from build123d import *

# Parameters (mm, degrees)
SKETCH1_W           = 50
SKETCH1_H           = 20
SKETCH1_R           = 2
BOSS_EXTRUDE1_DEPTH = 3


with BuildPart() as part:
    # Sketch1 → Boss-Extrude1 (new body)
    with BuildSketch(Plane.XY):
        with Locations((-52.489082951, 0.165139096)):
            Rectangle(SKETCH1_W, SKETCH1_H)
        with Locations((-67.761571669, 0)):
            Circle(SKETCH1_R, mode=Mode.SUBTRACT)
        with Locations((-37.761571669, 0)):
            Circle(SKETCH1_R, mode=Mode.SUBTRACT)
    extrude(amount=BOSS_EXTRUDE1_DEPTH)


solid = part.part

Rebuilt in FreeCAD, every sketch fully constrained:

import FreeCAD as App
import Part
import Sketcher

V = App.Vector


def add_polygon(sketch, points):
    """Adds a closed chain of lines whose ends are joined by coincident constraints."""
    first, n = sketch.GeometryCount, len(points)
    for a, b in zip(points, points[1:] + points[:1]):
        sketch.addGeometry(Part.LineSegment(App.Vector(*a, 0), App.Vector(*b, 0)), False)
    for i in range(n):
        sketch.addConstraint(Sketcher.Constraint("Coincident", first + i, 2, first + (i + 1) % n, 1))

doc = App.newDocument("Part")
params = doc.addObject("Spreadsheet::Sheet", "Params")
for row, (alias, value) in enumerate([
    ("sketch1_diameter", "4 mm"),
    ("sketch1_width", "50 mm"),
    ("sketch1_height", "20 mm"),
    ("pad1_length", "3 mm"),
], start=1):
    params.set(f"A{row}", alias)
    params.set(f"B{row}", "=" + value)
    params.setAlias(f"B{row}", alias)

body = doc.addObject("PartDesign::Body", "Body")

# Sketch on XY plane
sketch1 = body.newObject("Sketcher::SketchObject", "Sketch")
sketch1.AttachmentSupport = (doc.getObject("XY_Plane"), [""])
sketch1.MapMode = "FlatFace"
add_polygon(sketch1, [(-77.489083, 10.165139), (-77.489083, -9.834861), (-27.489083, -9.834861), (-27.489083, 10.165139)])  # lines 0-3
sketch1.addGeometry(Part.Circle(V(-67.761572, 0, 0), V(0, 0, 1), 2), False)  # 4
sketch1.addGeometry(Part.Circle(V(-37.761572, 0, 0), V(0, 0, 1), 2), False)  # 5
sketch1.addConstraint([
    Sketcher.Constraint("Vertical", 0),
    Sketcher.Constraint("Horizontal", 1),
    Sketcher.Constraint("Vertical", 2),
    Sketcher.Constraint("Horizontal", 3),
    Sketcher.Constraint("Equal", 4, 5),
    Sketcher.Constraint("PointOnObject", 4, 3, -1),
    Sketcher.Constraint("PointOnObject", 5, 3, -1),
    Sketcher.Constraint("Diameter", 4, 4.0),
    Sketcher.Constraint("DistanceX", 1, 1, 1, 2, 50.0),
    Sketcher.Constraint("DistanceY", 0, 2, 0, 1, 20.0),
    Sketcher.Constraint("DistanceX", 4, 3, 5, 3, 30.0),
    Sketcher.Constraint("DistanceX", 4, 3, -1, 1, 67.761572),
    Sketcher.Constraint("DistanceY", 0, 2, -1, 1, 9.834861),
    Sketcher.Constraint("DistanceX", 0, 2, 4, 3, 9.727511),
])
sketch1.setExpression("Constraints[11]", "Params.sketch1_diameter")
sketch1.setExpression("Constraints[12]", "Params.sketch1_width")
sketch1.setExpression("Constraints[13]", "Params.sketch1_height")
pad1 = body.newObject("PartDesign::Pad", "Pad")
pad1.Profile = sketch1
pad1.setExpression("Length", "Params.pad1_length")

doc.recompute()
